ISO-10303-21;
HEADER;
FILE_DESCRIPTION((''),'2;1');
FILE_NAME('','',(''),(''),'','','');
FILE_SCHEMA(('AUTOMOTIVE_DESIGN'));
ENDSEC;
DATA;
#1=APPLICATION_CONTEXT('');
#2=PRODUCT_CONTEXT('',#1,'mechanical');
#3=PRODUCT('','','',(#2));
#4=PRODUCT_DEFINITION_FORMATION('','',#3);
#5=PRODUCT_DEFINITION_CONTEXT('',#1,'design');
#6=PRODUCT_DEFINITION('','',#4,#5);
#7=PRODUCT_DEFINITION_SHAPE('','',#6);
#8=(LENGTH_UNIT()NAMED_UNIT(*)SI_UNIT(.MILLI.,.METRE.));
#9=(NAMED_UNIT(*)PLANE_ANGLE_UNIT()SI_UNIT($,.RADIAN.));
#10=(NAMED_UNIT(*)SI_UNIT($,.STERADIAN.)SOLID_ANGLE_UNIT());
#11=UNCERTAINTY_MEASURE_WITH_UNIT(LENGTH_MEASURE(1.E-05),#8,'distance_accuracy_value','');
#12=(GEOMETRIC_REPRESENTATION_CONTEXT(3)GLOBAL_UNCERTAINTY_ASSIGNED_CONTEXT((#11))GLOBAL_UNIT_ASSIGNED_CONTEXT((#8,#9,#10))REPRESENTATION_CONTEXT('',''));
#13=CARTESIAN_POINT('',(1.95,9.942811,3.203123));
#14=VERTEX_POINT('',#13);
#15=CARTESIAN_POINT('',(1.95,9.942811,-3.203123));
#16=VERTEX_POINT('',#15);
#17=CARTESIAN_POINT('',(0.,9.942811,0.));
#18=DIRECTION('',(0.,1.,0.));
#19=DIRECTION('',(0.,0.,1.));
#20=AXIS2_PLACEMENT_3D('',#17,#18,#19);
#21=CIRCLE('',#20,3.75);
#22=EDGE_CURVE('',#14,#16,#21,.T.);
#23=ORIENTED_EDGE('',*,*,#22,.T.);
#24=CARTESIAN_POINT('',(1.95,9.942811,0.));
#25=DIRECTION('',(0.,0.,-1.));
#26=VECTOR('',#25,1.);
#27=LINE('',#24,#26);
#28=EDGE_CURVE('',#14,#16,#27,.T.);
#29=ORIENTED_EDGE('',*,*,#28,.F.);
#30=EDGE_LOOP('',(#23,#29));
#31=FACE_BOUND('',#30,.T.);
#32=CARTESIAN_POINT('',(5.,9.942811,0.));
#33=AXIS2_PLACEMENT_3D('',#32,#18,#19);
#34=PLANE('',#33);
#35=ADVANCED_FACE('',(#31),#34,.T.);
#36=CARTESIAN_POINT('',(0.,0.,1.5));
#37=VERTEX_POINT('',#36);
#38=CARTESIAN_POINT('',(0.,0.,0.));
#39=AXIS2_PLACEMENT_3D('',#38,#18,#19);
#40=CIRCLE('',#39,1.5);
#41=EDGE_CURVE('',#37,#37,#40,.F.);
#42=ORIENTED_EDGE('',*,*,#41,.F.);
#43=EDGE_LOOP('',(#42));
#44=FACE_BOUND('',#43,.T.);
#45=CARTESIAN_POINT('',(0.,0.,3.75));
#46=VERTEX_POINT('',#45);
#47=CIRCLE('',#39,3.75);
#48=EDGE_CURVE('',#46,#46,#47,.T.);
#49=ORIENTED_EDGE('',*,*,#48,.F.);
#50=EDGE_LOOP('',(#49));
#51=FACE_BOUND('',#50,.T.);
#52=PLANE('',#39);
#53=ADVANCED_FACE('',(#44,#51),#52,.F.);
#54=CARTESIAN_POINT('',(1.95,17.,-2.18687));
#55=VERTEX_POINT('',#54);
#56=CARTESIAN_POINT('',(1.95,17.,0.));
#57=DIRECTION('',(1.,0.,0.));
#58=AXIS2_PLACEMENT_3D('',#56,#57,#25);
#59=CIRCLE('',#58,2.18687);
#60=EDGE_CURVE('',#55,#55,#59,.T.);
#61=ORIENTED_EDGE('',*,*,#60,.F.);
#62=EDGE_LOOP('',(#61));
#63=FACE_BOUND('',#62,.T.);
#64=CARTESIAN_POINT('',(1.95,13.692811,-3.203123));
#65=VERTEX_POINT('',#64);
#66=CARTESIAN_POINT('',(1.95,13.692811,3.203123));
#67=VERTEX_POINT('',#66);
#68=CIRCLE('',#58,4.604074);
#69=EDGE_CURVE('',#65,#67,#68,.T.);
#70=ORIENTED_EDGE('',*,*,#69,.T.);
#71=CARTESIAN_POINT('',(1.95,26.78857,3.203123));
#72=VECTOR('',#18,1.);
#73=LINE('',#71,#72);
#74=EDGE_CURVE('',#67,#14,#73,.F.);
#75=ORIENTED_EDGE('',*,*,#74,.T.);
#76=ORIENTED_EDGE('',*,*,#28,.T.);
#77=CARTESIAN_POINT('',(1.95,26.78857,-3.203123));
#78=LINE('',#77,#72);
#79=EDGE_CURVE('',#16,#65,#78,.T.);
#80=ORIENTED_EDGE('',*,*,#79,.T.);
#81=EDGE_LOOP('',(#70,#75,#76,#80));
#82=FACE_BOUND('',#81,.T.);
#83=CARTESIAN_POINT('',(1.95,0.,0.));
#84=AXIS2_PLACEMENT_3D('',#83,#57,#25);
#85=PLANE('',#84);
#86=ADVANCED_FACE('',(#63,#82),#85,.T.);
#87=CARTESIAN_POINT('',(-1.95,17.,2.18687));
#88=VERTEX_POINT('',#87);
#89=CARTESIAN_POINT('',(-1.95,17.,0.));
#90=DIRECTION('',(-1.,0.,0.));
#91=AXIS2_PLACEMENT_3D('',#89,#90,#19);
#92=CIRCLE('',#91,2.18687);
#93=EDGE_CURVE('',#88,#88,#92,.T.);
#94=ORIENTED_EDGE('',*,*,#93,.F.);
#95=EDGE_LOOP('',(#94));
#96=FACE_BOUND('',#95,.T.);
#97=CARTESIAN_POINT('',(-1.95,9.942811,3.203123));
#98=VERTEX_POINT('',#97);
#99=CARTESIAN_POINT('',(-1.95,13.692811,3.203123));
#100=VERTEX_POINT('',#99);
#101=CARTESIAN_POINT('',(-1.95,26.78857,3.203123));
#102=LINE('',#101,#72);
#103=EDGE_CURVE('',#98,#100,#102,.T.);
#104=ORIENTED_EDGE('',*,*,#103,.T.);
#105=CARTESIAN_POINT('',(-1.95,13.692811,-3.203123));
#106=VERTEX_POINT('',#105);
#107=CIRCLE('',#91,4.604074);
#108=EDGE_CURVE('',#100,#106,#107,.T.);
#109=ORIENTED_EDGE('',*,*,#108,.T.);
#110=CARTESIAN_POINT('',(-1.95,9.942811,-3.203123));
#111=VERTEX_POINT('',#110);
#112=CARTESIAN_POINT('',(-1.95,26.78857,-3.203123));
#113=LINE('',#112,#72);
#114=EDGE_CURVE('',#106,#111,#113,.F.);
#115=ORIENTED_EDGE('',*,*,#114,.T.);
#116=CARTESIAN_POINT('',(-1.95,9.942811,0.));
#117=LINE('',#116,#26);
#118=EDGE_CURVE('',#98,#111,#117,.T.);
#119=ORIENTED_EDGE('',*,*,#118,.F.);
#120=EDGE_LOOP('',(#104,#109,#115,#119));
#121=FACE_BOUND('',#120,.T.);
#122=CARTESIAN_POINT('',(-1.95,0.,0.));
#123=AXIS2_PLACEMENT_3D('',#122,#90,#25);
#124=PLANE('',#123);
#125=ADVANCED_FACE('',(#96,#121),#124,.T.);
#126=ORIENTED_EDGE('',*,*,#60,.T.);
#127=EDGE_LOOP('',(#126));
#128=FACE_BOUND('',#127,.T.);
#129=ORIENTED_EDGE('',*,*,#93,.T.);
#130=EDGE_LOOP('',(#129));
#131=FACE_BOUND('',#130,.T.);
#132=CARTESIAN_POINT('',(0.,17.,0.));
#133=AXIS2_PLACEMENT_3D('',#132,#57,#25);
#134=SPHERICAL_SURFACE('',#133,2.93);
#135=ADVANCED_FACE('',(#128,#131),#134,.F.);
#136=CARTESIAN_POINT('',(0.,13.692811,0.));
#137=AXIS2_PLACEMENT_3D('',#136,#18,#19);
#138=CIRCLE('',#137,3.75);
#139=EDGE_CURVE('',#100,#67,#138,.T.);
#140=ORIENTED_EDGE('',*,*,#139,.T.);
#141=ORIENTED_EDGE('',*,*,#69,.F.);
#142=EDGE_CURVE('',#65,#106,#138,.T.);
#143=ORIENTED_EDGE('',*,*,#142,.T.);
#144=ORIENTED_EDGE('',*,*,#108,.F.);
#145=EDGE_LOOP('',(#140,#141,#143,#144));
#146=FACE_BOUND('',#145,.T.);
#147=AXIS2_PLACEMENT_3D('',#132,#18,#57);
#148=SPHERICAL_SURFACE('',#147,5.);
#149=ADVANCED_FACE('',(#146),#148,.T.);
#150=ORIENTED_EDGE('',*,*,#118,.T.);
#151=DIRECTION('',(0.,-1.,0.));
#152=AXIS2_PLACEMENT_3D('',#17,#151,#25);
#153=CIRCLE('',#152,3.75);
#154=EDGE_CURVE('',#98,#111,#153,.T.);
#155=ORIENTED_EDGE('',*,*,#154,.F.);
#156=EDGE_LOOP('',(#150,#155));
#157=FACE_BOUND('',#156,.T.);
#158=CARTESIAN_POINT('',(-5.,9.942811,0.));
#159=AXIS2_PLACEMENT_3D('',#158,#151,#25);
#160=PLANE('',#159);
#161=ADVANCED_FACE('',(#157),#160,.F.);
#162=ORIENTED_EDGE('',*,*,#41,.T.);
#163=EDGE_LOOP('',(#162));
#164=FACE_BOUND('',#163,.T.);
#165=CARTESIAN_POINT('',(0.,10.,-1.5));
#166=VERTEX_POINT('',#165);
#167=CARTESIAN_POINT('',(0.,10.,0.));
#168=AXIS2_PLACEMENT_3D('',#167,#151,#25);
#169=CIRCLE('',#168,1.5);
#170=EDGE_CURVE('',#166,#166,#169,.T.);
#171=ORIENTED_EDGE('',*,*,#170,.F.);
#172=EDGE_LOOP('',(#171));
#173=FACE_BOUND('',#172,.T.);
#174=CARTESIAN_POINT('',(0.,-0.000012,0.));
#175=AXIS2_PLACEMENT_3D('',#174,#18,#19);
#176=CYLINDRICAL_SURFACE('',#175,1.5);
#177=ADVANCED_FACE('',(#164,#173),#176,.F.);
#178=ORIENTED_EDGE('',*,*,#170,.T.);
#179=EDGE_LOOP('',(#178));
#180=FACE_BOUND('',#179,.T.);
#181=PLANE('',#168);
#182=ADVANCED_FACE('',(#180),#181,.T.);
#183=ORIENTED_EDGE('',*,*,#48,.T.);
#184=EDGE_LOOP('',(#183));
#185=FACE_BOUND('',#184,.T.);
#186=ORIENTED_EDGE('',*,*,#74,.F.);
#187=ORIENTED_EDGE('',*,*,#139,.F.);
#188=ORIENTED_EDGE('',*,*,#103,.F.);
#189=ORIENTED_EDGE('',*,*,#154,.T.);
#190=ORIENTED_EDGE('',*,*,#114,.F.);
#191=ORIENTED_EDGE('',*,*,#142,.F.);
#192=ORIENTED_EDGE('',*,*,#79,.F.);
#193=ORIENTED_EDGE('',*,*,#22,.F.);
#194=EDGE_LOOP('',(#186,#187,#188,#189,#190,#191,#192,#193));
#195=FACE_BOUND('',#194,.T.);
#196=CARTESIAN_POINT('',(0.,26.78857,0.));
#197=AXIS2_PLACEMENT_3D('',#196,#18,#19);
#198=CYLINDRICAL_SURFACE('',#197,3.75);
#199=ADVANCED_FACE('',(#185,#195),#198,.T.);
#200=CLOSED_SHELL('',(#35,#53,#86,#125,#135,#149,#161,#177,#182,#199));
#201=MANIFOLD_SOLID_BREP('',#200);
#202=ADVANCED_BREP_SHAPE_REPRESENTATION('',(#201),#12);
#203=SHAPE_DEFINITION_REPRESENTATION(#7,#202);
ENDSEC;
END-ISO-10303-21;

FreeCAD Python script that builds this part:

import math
import FreeCAD as App
import Part
import Sketcher
from FreeCAD import Vector
Q = App.Units.Quantity

doc = App.newDocument("Part")
body = doc.addObject("PartDesign::Body", "Body")

# Sketch on XY plane
sketch1 = body.newObject("Sketcher::SketchObject", "Sketch")
sketch1.AttachmentSupport = (doc.getObject("XY_Plane"), [""])
sketch1.MapMode = "FlatFace"
sketch1.addGeometry([
    Part.LineSegment(Vector(0, 0, 0), Vector(3.8, 0, 0)),  # 0
    Part.LineSegment(Vector(3.8, 0, 0), Vector(3.8, 13.7, 0)),  # 1
    Part.ArcOfCircle(Part.Circle(Vector(0, 17, 0), Vector(0, 0, 1), 5), math.radians(-41), math.radians(90)),  # 2
    Part.LineSegment(Vector(0, 22, 0), Vector(0, 19.9, 0)),  # 3
    Part.ArcOfCircle(Part.Circle(Vector(0, 17, 0), Vector(0, 0, 1), 2.9), math.radians(-90), math.radians(90)),  # 4
    Part.LineSegment(Vector(0, 14.1, 0), Vector(0, 0, 0)),  # 5
], False)
sketch1.addConstraint([
    Sketcher.Constraint("Coincident", 0, 2, 1, 1),
    Sketcher.Constraint("Coincident", 1, 2, 2, 1),
    Sketcher.Constraint("Coincident", 2, 2, 3, 1),
    Sketcher.Constraint("Coincident", 3, 2, 4, 2),
    Sketcher.Constraint("Coincident", 4, 1, 5, 1),
    Sketcher.Constraint("Coincident", 5, 2, 0, 1),
    Sketcher.Constraint("Horizontal", 0),
    Sketcher.Constraint("Vertical", 1),
    Sketcher.Constraint("Vertical", 3),
    Sketcher.Constraint("Vertical", 5),
    Sketcher.Constraint("Coincident", 5, 2, -1, 1),
    Sketcher.Constraint("Coincident", 4, 3, 2, 3),
    Sketcher.Constraint("PointOnObject", 2, 3, -2),
    Sketcher.Constraint("PointOnObject", 2, 2, -2),
    Sketcher.Constraint("Radius", 2, Q("5 mm")),
    Sketcher.Constraint("Radius", 4, Q("2.93 mm")),
    Sketcher.Constraint("DistanceY", -1, 1, 2, 3, Q("17 mm")),
    Sketcher.Constraint("DistanceX", 0, 1, 0, 2, Q("3.75 mm")),
])
revolution = body.newObject("PartDesign::Revolution", "Revolution")
revolution.Profile = sketch1
revolution.ReferenceAxis = (sketch1, ["V_Axis"])
revolution.Angle = 360

# Sketch on YZ plane
sketch2 = body.newObject("Sketcher::SketchObject", "Sketch001")
sketch2.AttachmentSupport = (doc.getObject("YZ_Plane"), [""])
sketch2.MapMode = "FlatFace"
sketch2.AttachmentOffset = App.Placement(Vector(0, 0, 1.95), App.Rotation())
sketch2.addGeometry([
    Part.LineSegment(Vector(9.9, 3.8, 0), Vector(9.9, -3.8, 0)),
    Part.LineSegment(Vector(9.9, -3.8, 0), Vector(13.7, -3.8, 0)),
    Part.ArcOfCircle(Part.Circle(Vector(17, 0, 0), Vector(0, 0, 1), 5), math.radians(-131), math.radians(131)),
    Part.LineSegment(Vector(13.7, 3.8, 0), Vector(9.9, 3.8, 0)),
], False)
sketch2.addConstraint([
    Sketcher.Constraint("Coincident", 0, 2, 1, 1),
    Sketcher.Constraint("Coincident", 1, 2, 2, 1),
    Sketcher.Constraint("Coincident", 2, 2, 3, 1),
    Sketcher.Constraint("Coincident", 3, 2, 0, 1),
    Sketcher.Constraint("Vertical", 0),
    Sketcher.Constraint("Horizontal", 1),
    Sketcher.Constraint("Horizontal", 3),
    Sketcher.Constraint("Symmetric", 1, 2, 2, 2, -1),
    Sketcher.Constraint("Radius", 2, Q("5 mm")),
    Sketcher.Constraint("DistanceY", 0, 2, 0, 1, Q("7.5 mm")),
    Sketcher.Constraint("DistanceX", -1, 1, 2, 3, Q("17 mm")),
    Sketcher.Constraint("DistanceX", 1, 1, 1, 2, Q("3.75 mm")),
])
pocket1 = body.newObject("PartDesign::Pocket", "Pocket")
pocket1.Profile = sketch2
pocket1.Length = 4.05
pocket1.Reversed = True
doc.recompute()

mirrored = body.newObject("PartDesign::Mirrored", "Mirrored")
mirrored.Originals = [pocket1]
mirrored.MirrorPlane = (doc.getObject("YZ_Plane"), [""])
body.Tip = mirrored

# Sketch on XZ plane
sketch3 = body.newObject("Sketcher::SketchObject", "Sketch002")
sketch3.AttachmentSupport = (doc.getObject("XZ_Plane"), [""])
sketch3.MapMode = "FlatFace"
sketch3.addGeometry(Part.Circle(Vector(0, 0, 0), Vector(0, 0, 1), 1.5), False)
sketch3.addConstraint([
    Sketcher.Constraint("Coincident", 0, 3, -1, 1),
    Sketcher.Constraint("Diameter", 0, Q("3 mm")),
])
pocket2 = body.newObject("PartDesign::Pocket", "Pocket001")
pocket2.Profile = sketch3
pocket2.Type = "TwoLengths"
pocket2.Length = 1
pocket2.Length2 = 10
pocket2.Reversed = True

doc.recompute()
